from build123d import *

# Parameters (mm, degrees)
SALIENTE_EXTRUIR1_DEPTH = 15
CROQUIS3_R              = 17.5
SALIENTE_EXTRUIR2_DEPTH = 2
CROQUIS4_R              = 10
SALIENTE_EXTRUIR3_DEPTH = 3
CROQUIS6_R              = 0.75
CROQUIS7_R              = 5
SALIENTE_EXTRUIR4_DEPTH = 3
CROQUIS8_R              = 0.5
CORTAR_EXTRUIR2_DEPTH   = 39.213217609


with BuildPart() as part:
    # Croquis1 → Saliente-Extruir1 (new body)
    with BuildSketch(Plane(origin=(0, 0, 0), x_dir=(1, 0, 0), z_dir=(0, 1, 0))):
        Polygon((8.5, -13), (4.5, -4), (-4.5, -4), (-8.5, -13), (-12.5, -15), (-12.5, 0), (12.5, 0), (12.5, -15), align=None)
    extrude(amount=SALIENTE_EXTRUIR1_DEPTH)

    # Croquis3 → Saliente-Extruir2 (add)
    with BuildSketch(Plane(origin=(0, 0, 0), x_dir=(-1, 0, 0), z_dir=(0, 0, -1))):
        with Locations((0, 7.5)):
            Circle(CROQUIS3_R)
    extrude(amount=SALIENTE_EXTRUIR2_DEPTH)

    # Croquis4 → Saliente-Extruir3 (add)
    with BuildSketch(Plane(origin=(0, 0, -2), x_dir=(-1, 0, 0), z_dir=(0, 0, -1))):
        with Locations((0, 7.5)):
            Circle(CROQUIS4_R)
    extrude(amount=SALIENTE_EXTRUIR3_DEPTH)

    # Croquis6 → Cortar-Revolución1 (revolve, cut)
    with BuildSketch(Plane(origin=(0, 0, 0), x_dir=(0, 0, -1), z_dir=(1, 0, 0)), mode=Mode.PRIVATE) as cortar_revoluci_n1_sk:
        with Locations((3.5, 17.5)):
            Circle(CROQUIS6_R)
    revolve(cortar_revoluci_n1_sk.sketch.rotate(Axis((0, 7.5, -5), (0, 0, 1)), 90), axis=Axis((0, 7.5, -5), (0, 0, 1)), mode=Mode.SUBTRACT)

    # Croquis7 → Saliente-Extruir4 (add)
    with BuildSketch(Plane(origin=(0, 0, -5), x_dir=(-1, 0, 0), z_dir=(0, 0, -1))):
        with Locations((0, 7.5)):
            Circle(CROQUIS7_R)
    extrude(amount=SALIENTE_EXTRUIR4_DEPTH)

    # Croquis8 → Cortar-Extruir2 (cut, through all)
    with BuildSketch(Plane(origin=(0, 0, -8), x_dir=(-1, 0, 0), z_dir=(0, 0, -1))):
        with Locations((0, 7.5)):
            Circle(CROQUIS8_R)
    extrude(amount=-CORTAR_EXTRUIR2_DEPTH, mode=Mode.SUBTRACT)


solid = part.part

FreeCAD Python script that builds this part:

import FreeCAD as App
import Part
import Sketcher

V = App.Vector

doc = App.newDocument("Part")
params = doc.addObject("Spreadsheet::Sheet", "Params")
for row, (alias, value) in enumerate([
    ("sketch1_width", "25 mm"),
    ("sketch1_width2", "9 mm"),
    ("sketch1_height", "15 mm"),
    ("pad1_length", "15 mm"),
    ("sketch2_diameter", "35 mm"),
    ("pad2_length", "2 mm"),
    ("sketch3_diameter", "20 mm"),
    ("pad3_length", "3 mm"),
    ("sketch4_diameter", "1.5 mm"),
    ("sketch4_height", "10 mm"),
    ("groove_angle", "360 deg"),
    ("sketch5_diameter", "10 mm"),
    ("pad4_length", "3 mm"),
    ("sketch6_diameter", "1 mm"),
], start=1):
    params.set(f"A{row}", alias)
    params.set(f"B{row}", "=" + value)
    params.setAlias(f"B{row}", alias)

body = doc.addObject("PartDesign::Body", "Body")

# Sketch on XZ plane
sketch1 = body.newObject("Sketcher::SketchObject", "Sketch")
sketch1.AttachmentSupport = (doc.getObject("XZ_Plane"), [""])
sketch1.MapMode = "FlatFace"
sketch1.addGeometry([
    Part.LineSegment(V(4.5, 4, 0), V(8.5, 13, 0)),  # 0
    Part.LineSegment(V(8.5, 13, 0), V(12.5, 15, 0)),  # 1
    Part.LineSegment(V(12.5, 15, 0), V(12.5, 0, 0)),  # 2
    Part.LineSegment(V(12.5, 0, 0), V(-12.5, 0, 0)),  # 3
    Part.LineSegment(V(-12.5, 0, 0), V(-12.5, 15, 0)),  # 4
    Part.LineSegment(V(-12.5, 15, 0), V(-8.5, 13, 0)),  # 5
    Part.LineSegment(V(-8.5, 13, 0), V(-4.5, 4, 0)),  # 6
    Part.LineSegment(V(-4.5, 4, 0), V(4.5, 4, 0)),  # 7
], False)
sketch1.addConstraint([
    Sketcher.Constraint("Coincident", 0, 2, 1, 1),
    Sketcher.Constraint("Coincident", 1, 2, 2, 1),
    Sketcher.Constraint("Coincident", 2, 2, 3, 1),
    Sketcher.Constraint("Coincident", 3, 2, 4, 1),
    Sketcher.Constraint("Coincident", 4, 2, 5, 1),
    Sketcher.Constraint("Coincident", 5, 2, 6, 1),
    Sketcher.Constraint("Coincident", 6, 2, 7, 1),
    Sketcher.Constraint("Coincident", 7, 2, 0, 1),
    Sketcher.Constraint("Vertical", 2),
    Sketcher.Constraint("Horizontal", 3),
    Sketcher.Constraint("Vertical", 4),
    Sketcher.Constraint("Horizontal", 7),
    Sketcher.Constraint("Symmetric", 2, 2, 3, 2, -1, 1),
    Sketcher.Constraint("Symmetric", 0, 2, 5, 2, -2),
    Sketcher.Constraint("Horizontal", 1, 2, 4, 2),
    Sketcher.Constraint("Equal", 0, 6),
    Sketcher.Constraint("DistanceX", 3, 2, 3, 1, 25.0),
    Sketcher.Constraint("DistanceX", 7, 1, 7, 2, 9.0),
    Sketcher.Constraint("DistanceY", 2, 2, 2, 1, 15.0),
    Sketcher.Constraint("DistanceY", -1, 1, 0, 2, 13.0),
    Sketcher.Constraint("DistanceY", -1, 1, 6, 2, 4.0),
    Sketcher.Constraint("DistanceX", 0, 2, 1, 2, 4.0),
])
sketch1.setExpression("Constraints[16]", "Params.sketch1_width")
sketch1.setExpression("Constraints[17]", "Params.sketch1_width2")
sketch1.setExpression("Constraints[18]", "Params.sketch1_height")
pad1 = body.newObject("PartDesign::Pad", "Pad")
pad1.Profile = sketch1
pad1.setExpression("Length", "Params.pad1_length")
pad1.Reversed = True

# Sketch on XY plane
sketch2 = body.newObject("Sketcher::SketchObject", "Sketch001")
sketch2.AttachmentSupport = (doc.getObject("XY_Plane"), [""])
sketch2.MapMode = "FlatFace"
sketch2.addGeometry(Part.Circle(V(0, 8, 0), V(0, 0, 1), 18), False)
sketch2.addConstraint([
    Sketcher.Constraint("PointOnObject", 0, 3, -2),
    Sketcher.Constraint("Diameter", 0, 35.0),
    Sketcher.Constraint("DistanceY", -1, 1, 0, 3, 7.5),
])
sketch2.setExpression("Constraints[1]", "Params.sketch2_diameter")
pad2 = body.newObject("PartDesign::Pad", "Pad001")
pad2.Profile = sketch2
pad2.setExpression("Length", "Params.pad2_length")
pad2.Reversed = True

# Sketch on XY plane
sketch3 = body.newObject("Sketcher::SketchObject", "Sketch002")
sketch3.AttachmentSupport = (doc.getObject("XY_Plane"), [""])
sketch3.MapMode = "FlatFace"
sketch3.AttachmentOffset = App.Placement(V(0, 0, -2), App.Rotation())
sketch3.addGeometry(Part.Circle(V(0, 8, 0), V(0, 0, 1), 10), False)
sketch3.addConstraint([
    Sketcher.Constraint("PointOnObject", 0, 3, -2),
    Sketcher.Constraint("Diameter", 0, 20.0),
    Sketcher.Constraint("DistanceY", -1, 1, 0, 3, 7.5),
])
sketch3.setExpression("Constraints[1]", "Params.sketch3_diameter")
pad3 = body.newObject("PartDesign::Pad", "Pad002")
pad3.Profile = sketch3
pad3.setExpression("Length", "Params.pad3_length")
pad3.Reversed = True

# Sketch on YZ plane
sketch4 = body.newObject("Sketcher::SketchObject", "Sketch003")
sketch4.AttachmentSupport = (doc.getObject("YZ_Plane"), [""])
sketch4.MapMode = "FlatFace"
sketch4.addGeometry(Part.Circle(V(17.5, -3.5, 0), V(0, 0, 1), 0.8), False)
sketch4.addGeometry(Part.LineSegment(V(7.5, -3.5, 0), V(7.5, 6.5, 0)), True)  # axis
sketch4.addConstraint([
    Sketcher.Constraint("Vertical", 1),
    Sketcher.Constraint("Horizontal", 0, 3, 1, 1),
    Sketcher.Constraint("Diameter", 0, 1.5),
    Sketcher.Constraint("DistanceY", 1, 1, 1, 2, 10.0),
    Sketcher.Constraint("DistanceX", 1, 1, 0, 3, 10.0),
    Sketcher.Constraint("DistanceX", -1, 1, 0, 3, 17.5),
    Sketcher.Constraint("DistanceY", 0, 3, -1, 1, 3.5),
])
sketch4.setExpression("Constraints[2]", "Params.sketch4_diameter")
sketch4.setExpression("Constraints[3]", "Params.sketch4_height")
groove = body.newObject("PartDesign::Groove", "Groove")
groove.Profile = sketch4
groove.ReferenceAxis = (sketch4, ["Axis0"])
groove.setExpression("Angle", "Params.groove_angle")

# Sketch on XY plane
sketch5 = body.newObject("Sketcher::SketchObject", "Sketch004")
sketch5.AttachmentSupport = (doc.getObject("XY_Plane"), [""])
sketch5.MapMode = "FlatFace"
sketch5.AttachmentOffset = App.Placement(V(0, 0, -5), App.Rotation())
sketch5.addGeometry(Part.Circle(V(0, 8, 0), V(0, 0, 1), 5), False)
sketch5.addConstraint([
    Sketcher.Constraint("PointOnObject", 0, 3, -2),
    Sketcher.Constraint("Diameter", 0, 10.0),
    Sketcher.Constraint("DistanceY", -1, 1, 0, 3, 7.5),
])
sketch5.setExpression("Constraints[1]", "Params.sketch5_diameter")
pad4 = body.newObject("PartDesign::Pad", "Pad003")
pad4.Profile = sketch5
pad4.setExpression("Length", "Params.pad4_length")
pad4.Reversed = True

# Sketch on XY plane
sketch6 = body.newObject("Sketcher::SketchObject", "Sketch005")
sketch6.AttachmentSupport = (doc.getObject("XY_Plane"), [""])
sketch6.MapMode = "FlatFace"
sketch6.AttachmentOffset = App.Placement(V(0, 0, -8), App.Rotation())
sketch6.addGeometry(Part.Circle(V(0, 7.5, 0), V(0, 0, 1), 0.5), False)
sketch6.addConstraint([
    Sketcher.Constraint("PointOnObject", 0, 3, -2),
    Sketcher.Constraint("Diameter", 0, 1.0),
    Sketcher.Constraint("DistanceY", -1, 1, 0, 3, 7.5),
])
sketch6.setExpression("Constraints[1]", "Params.sketch6_diameter")
pocket1 = body.newObject("PartDesign::Pocket", "Pocket")
pocket1.Profile = sketch6
pocket1.Type = "ThroughAll"
pocket1.Reversed = True

doc.recompute()
